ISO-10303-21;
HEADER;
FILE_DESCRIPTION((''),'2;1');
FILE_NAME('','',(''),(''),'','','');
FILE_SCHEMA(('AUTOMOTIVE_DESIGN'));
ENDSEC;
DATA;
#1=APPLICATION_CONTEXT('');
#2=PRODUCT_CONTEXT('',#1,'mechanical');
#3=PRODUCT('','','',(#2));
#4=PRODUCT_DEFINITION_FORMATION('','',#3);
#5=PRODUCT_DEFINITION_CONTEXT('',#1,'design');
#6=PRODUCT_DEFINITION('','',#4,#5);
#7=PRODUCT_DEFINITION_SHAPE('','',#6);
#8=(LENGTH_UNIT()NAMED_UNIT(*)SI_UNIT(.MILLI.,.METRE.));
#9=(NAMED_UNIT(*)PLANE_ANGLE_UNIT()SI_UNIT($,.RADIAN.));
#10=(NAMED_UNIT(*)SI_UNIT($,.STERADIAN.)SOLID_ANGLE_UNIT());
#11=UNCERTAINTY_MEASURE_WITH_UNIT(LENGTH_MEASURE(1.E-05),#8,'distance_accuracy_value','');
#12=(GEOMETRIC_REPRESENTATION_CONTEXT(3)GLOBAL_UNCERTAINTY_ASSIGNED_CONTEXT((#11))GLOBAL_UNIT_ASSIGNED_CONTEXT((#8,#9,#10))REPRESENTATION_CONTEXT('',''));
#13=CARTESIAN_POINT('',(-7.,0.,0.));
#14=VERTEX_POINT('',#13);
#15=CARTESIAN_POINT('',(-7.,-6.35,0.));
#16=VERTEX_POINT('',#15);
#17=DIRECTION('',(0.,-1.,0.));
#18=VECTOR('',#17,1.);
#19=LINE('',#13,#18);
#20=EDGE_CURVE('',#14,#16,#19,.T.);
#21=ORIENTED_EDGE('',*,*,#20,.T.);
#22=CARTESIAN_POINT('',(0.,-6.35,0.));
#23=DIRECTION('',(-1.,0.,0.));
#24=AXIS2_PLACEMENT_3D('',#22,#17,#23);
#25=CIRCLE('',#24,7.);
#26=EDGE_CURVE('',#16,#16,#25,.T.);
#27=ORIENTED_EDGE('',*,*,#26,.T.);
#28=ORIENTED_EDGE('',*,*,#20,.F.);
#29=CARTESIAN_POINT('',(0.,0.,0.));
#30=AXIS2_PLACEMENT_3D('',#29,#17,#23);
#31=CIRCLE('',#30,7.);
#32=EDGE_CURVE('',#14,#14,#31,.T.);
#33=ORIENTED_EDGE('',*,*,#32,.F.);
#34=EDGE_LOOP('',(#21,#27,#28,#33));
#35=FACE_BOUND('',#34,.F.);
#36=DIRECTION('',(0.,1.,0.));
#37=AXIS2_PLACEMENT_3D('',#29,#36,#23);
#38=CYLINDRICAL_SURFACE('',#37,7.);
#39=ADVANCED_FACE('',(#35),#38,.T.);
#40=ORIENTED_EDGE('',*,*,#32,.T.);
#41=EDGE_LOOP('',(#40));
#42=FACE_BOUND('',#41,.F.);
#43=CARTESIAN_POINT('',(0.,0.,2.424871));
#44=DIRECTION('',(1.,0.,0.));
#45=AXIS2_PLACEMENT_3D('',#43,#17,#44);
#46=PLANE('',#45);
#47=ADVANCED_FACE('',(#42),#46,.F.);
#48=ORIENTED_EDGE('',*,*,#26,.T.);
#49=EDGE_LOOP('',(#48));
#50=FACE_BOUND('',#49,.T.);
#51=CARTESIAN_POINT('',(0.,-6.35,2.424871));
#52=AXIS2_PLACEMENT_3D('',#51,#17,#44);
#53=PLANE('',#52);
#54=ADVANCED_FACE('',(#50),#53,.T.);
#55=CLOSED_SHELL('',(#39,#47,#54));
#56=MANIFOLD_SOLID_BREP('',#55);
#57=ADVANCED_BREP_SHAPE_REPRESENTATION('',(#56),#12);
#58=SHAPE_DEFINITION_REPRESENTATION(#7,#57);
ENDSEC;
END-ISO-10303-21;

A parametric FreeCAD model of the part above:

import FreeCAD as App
import Part
import Sketcher
Q = App.Units.Quantity

doc = App.newDocument("Part")
body = doc.addObject("PartDesign::Body", "Body")

# Sketch on XZ plane
sketch1 = body.newObject("Sketcher::SketchObject", "Sketch")
sketch1.AttachmentSupport = (doc.getObject("XZ_Plane"), [""])
sketch1.MapMode = "FlatFace"
sketch1.addGeometry(Part.Circle(App.Vector(0, 0, 0), App.Vector(0, 0, 1), 7), False)
sketch1.addConstraint(Sketcher.Constraint("Coincident", 0, 3, -1, 1))
sketch1.addConstraint(Sketcher.Constraint("Diameter", 0, Q("14 mm")))
pad1 = body.newObject("PartDesign::Pad", "Pad")
pad1.Profile = sketch1
pad1.Length = 6.35

doc.recompute()
